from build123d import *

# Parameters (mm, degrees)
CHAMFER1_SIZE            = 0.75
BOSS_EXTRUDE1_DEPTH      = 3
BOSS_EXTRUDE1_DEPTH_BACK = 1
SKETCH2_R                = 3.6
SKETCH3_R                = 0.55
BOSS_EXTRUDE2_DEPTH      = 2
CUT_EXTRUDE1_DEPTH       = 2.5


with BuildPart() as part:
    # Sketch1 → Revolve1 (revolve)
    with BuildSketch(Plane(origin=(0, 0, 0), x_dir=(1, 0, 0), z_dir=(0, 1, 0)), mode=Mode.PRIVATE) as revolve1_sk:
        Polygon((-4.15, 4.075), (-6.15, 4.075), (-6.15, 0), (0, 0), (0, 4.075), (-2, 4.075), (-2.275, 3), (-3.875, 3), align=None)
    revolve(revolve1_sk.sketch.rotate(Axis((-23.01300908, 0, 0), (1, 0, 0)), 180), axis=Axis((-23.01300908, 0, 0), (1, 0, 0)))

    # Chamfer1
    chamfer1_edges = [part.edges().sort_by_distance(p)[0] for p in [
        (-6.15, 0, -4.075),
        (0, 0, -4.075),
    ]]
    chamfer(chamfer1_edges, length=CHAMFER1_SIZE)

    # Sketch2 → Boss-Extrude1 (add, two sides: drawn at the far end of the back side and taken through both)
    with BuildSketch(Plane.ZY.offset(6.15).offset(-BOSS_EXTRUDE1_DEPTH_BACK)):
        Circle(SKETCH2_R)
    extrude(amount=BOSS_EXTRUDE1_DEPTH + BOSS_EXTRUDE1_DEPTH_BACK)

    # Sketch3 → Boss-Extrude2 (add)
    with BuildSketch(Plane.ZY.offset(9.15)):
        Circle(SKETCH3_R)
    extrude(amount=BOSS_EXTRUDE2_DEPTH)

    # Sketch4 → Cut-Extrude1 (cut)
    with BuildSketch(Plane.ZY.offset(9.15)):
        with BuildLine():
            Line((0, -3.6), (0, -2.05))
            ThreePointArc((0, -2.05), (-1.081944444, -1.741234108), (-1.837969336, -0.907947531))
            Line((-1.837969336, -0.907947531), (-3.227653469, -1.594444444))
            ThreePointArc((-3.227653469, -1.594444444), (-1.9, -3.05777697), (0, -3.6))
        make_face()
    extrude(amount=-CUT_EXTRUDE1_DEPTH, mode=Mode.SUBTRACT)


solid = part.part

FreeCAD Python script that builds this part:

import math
import FreeCAD as App
import Part
import Sketcher
from FreeCAD import Vector


def edges_at(feature, points):
    """Names of the edges that pass closest to the given points."""
    edges = feature.Shape.Edges
    near = lambda p: min(range(len(edges)), key=lambda i: edges[i].distToShape(Part.Vertex(*p))[0])
    return sorted({f"Edge{near(p) + 1}" for p in points})


def add_polygon(sketch, points):
    """Adds a closed chain of lines whose ends are joined by coincident constraints."""
    first, n = sketch.GeometryCount, len(points)
    for a, b in zip(points, points[1:] + points[:1]):
        sketch.addGeometry(Part.LineSegment(App.Vector(*a, 0), App.Vector(*b, 0)), False)
    for i in range(n):
        sketch.addConstraint(Sketcher.Constraint("Coincident", first + i, 2, first + (i + 1) % n, 1))

doc = App.newDocument("Part")
body = doc.addObject("PartDesign::Body", "Body")

sketch1 = doc.addObject("Sketcher::SketchObject", "Sketch")
body.addObject(sketch1)
sketch1.AttachmentSupport = (doc.XZ_Plane, [""])
sketch1.MapMode = "FlatFace"
add_polygon(sketch1, [(-4.2, -4.1), (-6.2, -4.1), (-6.2, 0), (0, 0), (0, -4.1), (-2, -4.1), (-2.3, -3), (-3.9, -3)])
sketch1.addConstraint(Sketcher.Constraint("Horizontal", 0))
sketch1.addConstraint(Sketcher.Constraint("Vertical", 1))
sketch1.addConstraint(Sketcher.Constraint("Horizontal", 2))
sketch1.addConstraint(Sketcher.Constraint("Vertical", 3))
sketch1.addConstraint(Sketcher.Constraint("Horizontal", 4))
sketch1.addConstraint(Sketcher.Constraint("Horizontal", 6))
sketch1.addConstraint(Sketcher.Constraint("Coincident", 2, 2, -1, 1))
sketch1.addConstraint(Sketcher.Constraint("Horizontal", 0, 2, 3, 2))
sketch1.addConstraint(Sketcher.Constraint("Equal", 0, 4))
sketch1.addConstraint(Sketcher.Constraint("Equal", 5, 7))
sketch1.addConstraint(Sketcher.Constraint("DistanceX", 0, 2, 0, 1, 2.0))
sketch1.addConstraint(Sketcher.Constraint("DistanceX", 6, 2, 6, 1, 1.6))
sketch1.addConstraint(Sketcher.Constraint("DistanceY", 5, 2, -1, 1, 3.0))
sketch1.addConstraint(Sketcher.Constraint("DistanceX", 2, 1, 2, 2, 6.15))
sketch1.addConstraint(Sketcher.Constraint("DistanceY", 1, 1, 1, 2, 4.075))
revolution = doc.addObject("PartDesign::Revolution", "Revolution")
body.addObject(revolution)
revolution.Profile = sketch1
revolution.ReferenceAxis = (sketch1, ["H_Axis"])
revolution.Angle = 360
doc.recompute()

chamfer = doc.addObject("PartDesign::Chamfer", "Chamfer")
body.addObject(chamfer)
chamfer.Base = (revolution, edges_at(revolution, [(-6.15, 0, -4.075), (0, 0, -4.075)]))
chamfer.Size = 0.75

sketch2 = doc.addObject("Sketcher::SketchObject", "Sketch001")
body.addObject(sketch2)
sketch2.AttachmentSupport = (doc.YZ_Plane, [""])
sketch2.MapMode = "FlatFace"
sketch2.AttachmentOffset = App.Placement(Vector(0, 0, -6.15), App.Rotation())
sketch2.addGeometry(Part.Circle(Vector(0, 0, 0), Vector(0, 0, 1), 3.6), False)
sketch2.addConstraint(Sketcher.Constraint("Coincident", 0, 3, -1, 1))
sketch2.addConstraint(Sketcher.Constraint("Diameter", 0, 7.2))
pad1 = doc.addObject("PartDesign::Pad", "Pad")
body.addObject(pad1)
pad1.Profile = sketch2
pad1.Type = "TwoLengths"
pad1.Length = 3
pad1.Length2 = 1
pad1.Reversed = True

sketch3 = doc.addObject("Sketcher::SketchObject", "Sketch002")
body.addObject(sketch3)
sketch3.AttachmentSupport = (doc.YZ_Plane, [""])
sketch3.MapMode = "FlatFace"
sketch3.AttachmentOffset = App.Placement(Vector(0, 0, -9.15), App.Rotation())
sketch3.addGeometry(Part.Circle(Vector(0, 0, 0), Vector(0, 0, 1), 0.6), False)
sketch3.addConstraint(Sketcher.Constraint("Coincident", 0, 3, -1, 1))
sketch3.addConstraint(Sketcher.Constraint("Diameter", 0, 1.1))
pad2 = doc.addObject("PartDesign::Pad", "Pad001")
body.addObject(pad2)
pad2.Profile = sketch3
pad2.Length = 2
pad2.Reversed = True

sketch4 = doc.addObject("Sketcher::SketchObject", "Sketch003")
body.addObject(sketch4)
sketch4.AttachmentSupport = (doc.YZ_Plane, [""])
sketch4.MapMode = "FlatFace"
sketch4.AttachmentOffset = App.Placement(Vector(0, 0, -9.15), App.Rotation())
sketch4.addGeometry(Part.LineSegment(Vector(-3.6, 0, 0), Vector(-2, 0, 0)), False)
sketch4.addGeometry(Part.ArcOfCircle(Part.Circle(Vector(0, 0, 0), Vector(0, 0, 1), 2.1), math.radians(-180), math.radians(-116)), False)
sketch4.addGeometry(Part.LineSegment(Vector(-0.9, -1.8, 0), Vector(-1.6, -3.2, 0)), False)
sketch4.addGeometry(Part.ArcOfCircle(Part.Circle(Vector(0, 0, 0), Vector(0, 0, 1), 3.6), math.radians(-180), math.radians(-116)), False)
sketch4.addConstraint(Sketcher.Constraint("Coincident", 0, 2, 1, 1))
sketch4.addConstraint(Sketcher.Constraint("Coincident", 1, 2, 2, 1))
sketch4.addConstraint(Sketcher.Constraint("Coincident", 2, 2, 3, 2))
sketch4.addConstraint(Sketcher.Constraint("Coincident", 3, 1, 0, 1))
sketch4.addConstraint(Sketcher.Constraint("Horizontal", 0))
sketch4.addConstraint(Sketcher.Constraint("Coincident", 1, 3, -1, 1))
sketch4.addConstraint(Sketcher.Constraint("Coincident", 3, 3, -1, 1))
sketch4.addConstraint(Sketcher.Constraint("PointOnObject", 0, 2, -1))
sketch4.addConstraint(Sketcher.Constraint("Radius", 3, 3.6))
sketch4.addConstraint(Sketcher.Constraint("Radius", 1, 2.05))
sketch4.addConstraint(Sketcher.Constraint("DistanceY", 1, 2, -1, 1, 1.837969))
sketch4.addConstraint(Sketcher.Constraint("DistanceX", 2, 2, -1, 1, 1.594444))
pocket1 = doc.addObject("PartDesign::Pocket", "Pocket")
body.addObject(pocket1)
pocket1.Profile = sketch4
pocket1.Length = 2.5
pocket1.Reversed = True

doc.recompute()
